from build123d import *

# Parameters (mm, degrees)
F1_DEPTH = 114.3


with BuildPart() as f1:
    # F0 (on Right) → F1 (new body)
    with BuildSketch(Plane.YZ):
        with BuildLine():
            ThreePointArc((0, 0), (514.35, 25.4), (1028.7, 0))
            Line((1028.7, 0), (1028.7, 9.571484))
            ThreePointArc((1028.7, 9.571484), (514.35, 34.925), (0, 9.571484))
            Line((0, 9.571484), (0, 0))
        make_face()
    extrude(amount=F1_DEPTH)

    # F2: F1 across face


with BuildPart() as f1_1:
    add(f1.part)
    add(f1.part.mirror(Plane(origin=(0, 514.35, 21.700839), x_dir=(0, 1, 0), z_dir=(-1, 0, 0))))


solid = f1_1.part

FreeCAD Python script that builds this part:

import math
import FreeCAD as App
import Part
import Sketcher

V = App.Vector
Q = App.Units.Quantity

doc = App.newDocument("Part")
body = doc.addObject("PartDesign::Body", "Body")

# Sketch on YZ plane
sketch1 = body.newObject("Sketcher::SketchObject", "Sketch")
sketch1.AttachmentSupport = (doc.getObject("YZ_Plane"), [""])
sketch1.MapMode = "FlatFace"
sketch1.addGeometry(Part.ArcOfCircle(Part.Circle(V(514, -5195, 0), V(0, 0, 1), 5220), math.radians(84.35), math.radians(95.65)), False)
sketch1.addGeometry(Part.LineSegment(V(1029, 0, 0), V(1029, 10, 0)), False)
sketch1.addGeometry(Part.ArcOfCircle(Part.Circle(V(514, -5195, 0), V(0, 0, 1), 5230), math.radians(84.36), math.radians(95.64)), False)
sketch1.addGeometry(Part.LineSegment(V(0, 10, 0), V(0, 0, 0)), False)
sketch1.addConstraint(Sketcher.Constraint("Coincident", 0, 1, 1, 1))
sketch1.addConstraint(Sketcher.Constraint("Coincident", 1, 2, 2, 1))
sketch1.addConstraint(Sketcher.Constraint("Coincident", 2, 2, 3, 1))
sketch1.addConstraint(Sketcher.Constraint("Coincident", 3, 2, 0, 2))
sketch1.addConstraint(Sketcher.Constraint("Vertical", 1))
sketch1.addConstraint(Sketcher.Constraint("Vertical", 3))
sketch1.addConstraint(Sketcher.Constraint("Coincident", 3, 2, -1, 1))
sketch1.addConstraint(Sketcher.Constraint("Vertical", 0, 3, 2, 3))
sketch1.addConstraint(Sketcher.Constraint("Radius", 0, Q("205.53125 in")))
sketch1.addConstraint(Sketcher.Constraint("DistanceX", -1, 1, 1, 2, Q("40.5 in")))
sketch1.addConstraint(Sketcher.Constraint("DistanceX", -1, 1, 0, 3, Q("20.25 in")))
sketch1.addConstraint(Sketcher.Constraint("Radius", 2, 5230.018654))
sketch1.addConstraint(Sketcher.Constraint("DistanceY", 1, 1, 1, 2, 9.571484))
pad1 = body.newObject("PartDesign::Pad", "Pad")
pad1.Profile = sketch1
pad1.Length = Q("4.5 in")
body2 = doc.addObject("PartDesign::Body", "Body001")
doc.recompute()

body2.BaseFeature = body
doc.recompute()

mirroring = doc.addObject("Part::Mirroring", "Mirroring")
mirroring.Source = body
mirroring.Base = V(0, 514.35, 21.700839)
mirroring.Normal = V(-1, 0, 0)
body3 = doc.addObject("PartDesign::Body", "Body002")
body3.BaseFeature = mirroring
boolean = body2.newObject("PartDesign::Boolean", "Boolean")
boolean.Type = "Fuse"
boolean.addObjects([body3])
doc.recompute()
mirroring.Visibility = False

doc.recompute()
